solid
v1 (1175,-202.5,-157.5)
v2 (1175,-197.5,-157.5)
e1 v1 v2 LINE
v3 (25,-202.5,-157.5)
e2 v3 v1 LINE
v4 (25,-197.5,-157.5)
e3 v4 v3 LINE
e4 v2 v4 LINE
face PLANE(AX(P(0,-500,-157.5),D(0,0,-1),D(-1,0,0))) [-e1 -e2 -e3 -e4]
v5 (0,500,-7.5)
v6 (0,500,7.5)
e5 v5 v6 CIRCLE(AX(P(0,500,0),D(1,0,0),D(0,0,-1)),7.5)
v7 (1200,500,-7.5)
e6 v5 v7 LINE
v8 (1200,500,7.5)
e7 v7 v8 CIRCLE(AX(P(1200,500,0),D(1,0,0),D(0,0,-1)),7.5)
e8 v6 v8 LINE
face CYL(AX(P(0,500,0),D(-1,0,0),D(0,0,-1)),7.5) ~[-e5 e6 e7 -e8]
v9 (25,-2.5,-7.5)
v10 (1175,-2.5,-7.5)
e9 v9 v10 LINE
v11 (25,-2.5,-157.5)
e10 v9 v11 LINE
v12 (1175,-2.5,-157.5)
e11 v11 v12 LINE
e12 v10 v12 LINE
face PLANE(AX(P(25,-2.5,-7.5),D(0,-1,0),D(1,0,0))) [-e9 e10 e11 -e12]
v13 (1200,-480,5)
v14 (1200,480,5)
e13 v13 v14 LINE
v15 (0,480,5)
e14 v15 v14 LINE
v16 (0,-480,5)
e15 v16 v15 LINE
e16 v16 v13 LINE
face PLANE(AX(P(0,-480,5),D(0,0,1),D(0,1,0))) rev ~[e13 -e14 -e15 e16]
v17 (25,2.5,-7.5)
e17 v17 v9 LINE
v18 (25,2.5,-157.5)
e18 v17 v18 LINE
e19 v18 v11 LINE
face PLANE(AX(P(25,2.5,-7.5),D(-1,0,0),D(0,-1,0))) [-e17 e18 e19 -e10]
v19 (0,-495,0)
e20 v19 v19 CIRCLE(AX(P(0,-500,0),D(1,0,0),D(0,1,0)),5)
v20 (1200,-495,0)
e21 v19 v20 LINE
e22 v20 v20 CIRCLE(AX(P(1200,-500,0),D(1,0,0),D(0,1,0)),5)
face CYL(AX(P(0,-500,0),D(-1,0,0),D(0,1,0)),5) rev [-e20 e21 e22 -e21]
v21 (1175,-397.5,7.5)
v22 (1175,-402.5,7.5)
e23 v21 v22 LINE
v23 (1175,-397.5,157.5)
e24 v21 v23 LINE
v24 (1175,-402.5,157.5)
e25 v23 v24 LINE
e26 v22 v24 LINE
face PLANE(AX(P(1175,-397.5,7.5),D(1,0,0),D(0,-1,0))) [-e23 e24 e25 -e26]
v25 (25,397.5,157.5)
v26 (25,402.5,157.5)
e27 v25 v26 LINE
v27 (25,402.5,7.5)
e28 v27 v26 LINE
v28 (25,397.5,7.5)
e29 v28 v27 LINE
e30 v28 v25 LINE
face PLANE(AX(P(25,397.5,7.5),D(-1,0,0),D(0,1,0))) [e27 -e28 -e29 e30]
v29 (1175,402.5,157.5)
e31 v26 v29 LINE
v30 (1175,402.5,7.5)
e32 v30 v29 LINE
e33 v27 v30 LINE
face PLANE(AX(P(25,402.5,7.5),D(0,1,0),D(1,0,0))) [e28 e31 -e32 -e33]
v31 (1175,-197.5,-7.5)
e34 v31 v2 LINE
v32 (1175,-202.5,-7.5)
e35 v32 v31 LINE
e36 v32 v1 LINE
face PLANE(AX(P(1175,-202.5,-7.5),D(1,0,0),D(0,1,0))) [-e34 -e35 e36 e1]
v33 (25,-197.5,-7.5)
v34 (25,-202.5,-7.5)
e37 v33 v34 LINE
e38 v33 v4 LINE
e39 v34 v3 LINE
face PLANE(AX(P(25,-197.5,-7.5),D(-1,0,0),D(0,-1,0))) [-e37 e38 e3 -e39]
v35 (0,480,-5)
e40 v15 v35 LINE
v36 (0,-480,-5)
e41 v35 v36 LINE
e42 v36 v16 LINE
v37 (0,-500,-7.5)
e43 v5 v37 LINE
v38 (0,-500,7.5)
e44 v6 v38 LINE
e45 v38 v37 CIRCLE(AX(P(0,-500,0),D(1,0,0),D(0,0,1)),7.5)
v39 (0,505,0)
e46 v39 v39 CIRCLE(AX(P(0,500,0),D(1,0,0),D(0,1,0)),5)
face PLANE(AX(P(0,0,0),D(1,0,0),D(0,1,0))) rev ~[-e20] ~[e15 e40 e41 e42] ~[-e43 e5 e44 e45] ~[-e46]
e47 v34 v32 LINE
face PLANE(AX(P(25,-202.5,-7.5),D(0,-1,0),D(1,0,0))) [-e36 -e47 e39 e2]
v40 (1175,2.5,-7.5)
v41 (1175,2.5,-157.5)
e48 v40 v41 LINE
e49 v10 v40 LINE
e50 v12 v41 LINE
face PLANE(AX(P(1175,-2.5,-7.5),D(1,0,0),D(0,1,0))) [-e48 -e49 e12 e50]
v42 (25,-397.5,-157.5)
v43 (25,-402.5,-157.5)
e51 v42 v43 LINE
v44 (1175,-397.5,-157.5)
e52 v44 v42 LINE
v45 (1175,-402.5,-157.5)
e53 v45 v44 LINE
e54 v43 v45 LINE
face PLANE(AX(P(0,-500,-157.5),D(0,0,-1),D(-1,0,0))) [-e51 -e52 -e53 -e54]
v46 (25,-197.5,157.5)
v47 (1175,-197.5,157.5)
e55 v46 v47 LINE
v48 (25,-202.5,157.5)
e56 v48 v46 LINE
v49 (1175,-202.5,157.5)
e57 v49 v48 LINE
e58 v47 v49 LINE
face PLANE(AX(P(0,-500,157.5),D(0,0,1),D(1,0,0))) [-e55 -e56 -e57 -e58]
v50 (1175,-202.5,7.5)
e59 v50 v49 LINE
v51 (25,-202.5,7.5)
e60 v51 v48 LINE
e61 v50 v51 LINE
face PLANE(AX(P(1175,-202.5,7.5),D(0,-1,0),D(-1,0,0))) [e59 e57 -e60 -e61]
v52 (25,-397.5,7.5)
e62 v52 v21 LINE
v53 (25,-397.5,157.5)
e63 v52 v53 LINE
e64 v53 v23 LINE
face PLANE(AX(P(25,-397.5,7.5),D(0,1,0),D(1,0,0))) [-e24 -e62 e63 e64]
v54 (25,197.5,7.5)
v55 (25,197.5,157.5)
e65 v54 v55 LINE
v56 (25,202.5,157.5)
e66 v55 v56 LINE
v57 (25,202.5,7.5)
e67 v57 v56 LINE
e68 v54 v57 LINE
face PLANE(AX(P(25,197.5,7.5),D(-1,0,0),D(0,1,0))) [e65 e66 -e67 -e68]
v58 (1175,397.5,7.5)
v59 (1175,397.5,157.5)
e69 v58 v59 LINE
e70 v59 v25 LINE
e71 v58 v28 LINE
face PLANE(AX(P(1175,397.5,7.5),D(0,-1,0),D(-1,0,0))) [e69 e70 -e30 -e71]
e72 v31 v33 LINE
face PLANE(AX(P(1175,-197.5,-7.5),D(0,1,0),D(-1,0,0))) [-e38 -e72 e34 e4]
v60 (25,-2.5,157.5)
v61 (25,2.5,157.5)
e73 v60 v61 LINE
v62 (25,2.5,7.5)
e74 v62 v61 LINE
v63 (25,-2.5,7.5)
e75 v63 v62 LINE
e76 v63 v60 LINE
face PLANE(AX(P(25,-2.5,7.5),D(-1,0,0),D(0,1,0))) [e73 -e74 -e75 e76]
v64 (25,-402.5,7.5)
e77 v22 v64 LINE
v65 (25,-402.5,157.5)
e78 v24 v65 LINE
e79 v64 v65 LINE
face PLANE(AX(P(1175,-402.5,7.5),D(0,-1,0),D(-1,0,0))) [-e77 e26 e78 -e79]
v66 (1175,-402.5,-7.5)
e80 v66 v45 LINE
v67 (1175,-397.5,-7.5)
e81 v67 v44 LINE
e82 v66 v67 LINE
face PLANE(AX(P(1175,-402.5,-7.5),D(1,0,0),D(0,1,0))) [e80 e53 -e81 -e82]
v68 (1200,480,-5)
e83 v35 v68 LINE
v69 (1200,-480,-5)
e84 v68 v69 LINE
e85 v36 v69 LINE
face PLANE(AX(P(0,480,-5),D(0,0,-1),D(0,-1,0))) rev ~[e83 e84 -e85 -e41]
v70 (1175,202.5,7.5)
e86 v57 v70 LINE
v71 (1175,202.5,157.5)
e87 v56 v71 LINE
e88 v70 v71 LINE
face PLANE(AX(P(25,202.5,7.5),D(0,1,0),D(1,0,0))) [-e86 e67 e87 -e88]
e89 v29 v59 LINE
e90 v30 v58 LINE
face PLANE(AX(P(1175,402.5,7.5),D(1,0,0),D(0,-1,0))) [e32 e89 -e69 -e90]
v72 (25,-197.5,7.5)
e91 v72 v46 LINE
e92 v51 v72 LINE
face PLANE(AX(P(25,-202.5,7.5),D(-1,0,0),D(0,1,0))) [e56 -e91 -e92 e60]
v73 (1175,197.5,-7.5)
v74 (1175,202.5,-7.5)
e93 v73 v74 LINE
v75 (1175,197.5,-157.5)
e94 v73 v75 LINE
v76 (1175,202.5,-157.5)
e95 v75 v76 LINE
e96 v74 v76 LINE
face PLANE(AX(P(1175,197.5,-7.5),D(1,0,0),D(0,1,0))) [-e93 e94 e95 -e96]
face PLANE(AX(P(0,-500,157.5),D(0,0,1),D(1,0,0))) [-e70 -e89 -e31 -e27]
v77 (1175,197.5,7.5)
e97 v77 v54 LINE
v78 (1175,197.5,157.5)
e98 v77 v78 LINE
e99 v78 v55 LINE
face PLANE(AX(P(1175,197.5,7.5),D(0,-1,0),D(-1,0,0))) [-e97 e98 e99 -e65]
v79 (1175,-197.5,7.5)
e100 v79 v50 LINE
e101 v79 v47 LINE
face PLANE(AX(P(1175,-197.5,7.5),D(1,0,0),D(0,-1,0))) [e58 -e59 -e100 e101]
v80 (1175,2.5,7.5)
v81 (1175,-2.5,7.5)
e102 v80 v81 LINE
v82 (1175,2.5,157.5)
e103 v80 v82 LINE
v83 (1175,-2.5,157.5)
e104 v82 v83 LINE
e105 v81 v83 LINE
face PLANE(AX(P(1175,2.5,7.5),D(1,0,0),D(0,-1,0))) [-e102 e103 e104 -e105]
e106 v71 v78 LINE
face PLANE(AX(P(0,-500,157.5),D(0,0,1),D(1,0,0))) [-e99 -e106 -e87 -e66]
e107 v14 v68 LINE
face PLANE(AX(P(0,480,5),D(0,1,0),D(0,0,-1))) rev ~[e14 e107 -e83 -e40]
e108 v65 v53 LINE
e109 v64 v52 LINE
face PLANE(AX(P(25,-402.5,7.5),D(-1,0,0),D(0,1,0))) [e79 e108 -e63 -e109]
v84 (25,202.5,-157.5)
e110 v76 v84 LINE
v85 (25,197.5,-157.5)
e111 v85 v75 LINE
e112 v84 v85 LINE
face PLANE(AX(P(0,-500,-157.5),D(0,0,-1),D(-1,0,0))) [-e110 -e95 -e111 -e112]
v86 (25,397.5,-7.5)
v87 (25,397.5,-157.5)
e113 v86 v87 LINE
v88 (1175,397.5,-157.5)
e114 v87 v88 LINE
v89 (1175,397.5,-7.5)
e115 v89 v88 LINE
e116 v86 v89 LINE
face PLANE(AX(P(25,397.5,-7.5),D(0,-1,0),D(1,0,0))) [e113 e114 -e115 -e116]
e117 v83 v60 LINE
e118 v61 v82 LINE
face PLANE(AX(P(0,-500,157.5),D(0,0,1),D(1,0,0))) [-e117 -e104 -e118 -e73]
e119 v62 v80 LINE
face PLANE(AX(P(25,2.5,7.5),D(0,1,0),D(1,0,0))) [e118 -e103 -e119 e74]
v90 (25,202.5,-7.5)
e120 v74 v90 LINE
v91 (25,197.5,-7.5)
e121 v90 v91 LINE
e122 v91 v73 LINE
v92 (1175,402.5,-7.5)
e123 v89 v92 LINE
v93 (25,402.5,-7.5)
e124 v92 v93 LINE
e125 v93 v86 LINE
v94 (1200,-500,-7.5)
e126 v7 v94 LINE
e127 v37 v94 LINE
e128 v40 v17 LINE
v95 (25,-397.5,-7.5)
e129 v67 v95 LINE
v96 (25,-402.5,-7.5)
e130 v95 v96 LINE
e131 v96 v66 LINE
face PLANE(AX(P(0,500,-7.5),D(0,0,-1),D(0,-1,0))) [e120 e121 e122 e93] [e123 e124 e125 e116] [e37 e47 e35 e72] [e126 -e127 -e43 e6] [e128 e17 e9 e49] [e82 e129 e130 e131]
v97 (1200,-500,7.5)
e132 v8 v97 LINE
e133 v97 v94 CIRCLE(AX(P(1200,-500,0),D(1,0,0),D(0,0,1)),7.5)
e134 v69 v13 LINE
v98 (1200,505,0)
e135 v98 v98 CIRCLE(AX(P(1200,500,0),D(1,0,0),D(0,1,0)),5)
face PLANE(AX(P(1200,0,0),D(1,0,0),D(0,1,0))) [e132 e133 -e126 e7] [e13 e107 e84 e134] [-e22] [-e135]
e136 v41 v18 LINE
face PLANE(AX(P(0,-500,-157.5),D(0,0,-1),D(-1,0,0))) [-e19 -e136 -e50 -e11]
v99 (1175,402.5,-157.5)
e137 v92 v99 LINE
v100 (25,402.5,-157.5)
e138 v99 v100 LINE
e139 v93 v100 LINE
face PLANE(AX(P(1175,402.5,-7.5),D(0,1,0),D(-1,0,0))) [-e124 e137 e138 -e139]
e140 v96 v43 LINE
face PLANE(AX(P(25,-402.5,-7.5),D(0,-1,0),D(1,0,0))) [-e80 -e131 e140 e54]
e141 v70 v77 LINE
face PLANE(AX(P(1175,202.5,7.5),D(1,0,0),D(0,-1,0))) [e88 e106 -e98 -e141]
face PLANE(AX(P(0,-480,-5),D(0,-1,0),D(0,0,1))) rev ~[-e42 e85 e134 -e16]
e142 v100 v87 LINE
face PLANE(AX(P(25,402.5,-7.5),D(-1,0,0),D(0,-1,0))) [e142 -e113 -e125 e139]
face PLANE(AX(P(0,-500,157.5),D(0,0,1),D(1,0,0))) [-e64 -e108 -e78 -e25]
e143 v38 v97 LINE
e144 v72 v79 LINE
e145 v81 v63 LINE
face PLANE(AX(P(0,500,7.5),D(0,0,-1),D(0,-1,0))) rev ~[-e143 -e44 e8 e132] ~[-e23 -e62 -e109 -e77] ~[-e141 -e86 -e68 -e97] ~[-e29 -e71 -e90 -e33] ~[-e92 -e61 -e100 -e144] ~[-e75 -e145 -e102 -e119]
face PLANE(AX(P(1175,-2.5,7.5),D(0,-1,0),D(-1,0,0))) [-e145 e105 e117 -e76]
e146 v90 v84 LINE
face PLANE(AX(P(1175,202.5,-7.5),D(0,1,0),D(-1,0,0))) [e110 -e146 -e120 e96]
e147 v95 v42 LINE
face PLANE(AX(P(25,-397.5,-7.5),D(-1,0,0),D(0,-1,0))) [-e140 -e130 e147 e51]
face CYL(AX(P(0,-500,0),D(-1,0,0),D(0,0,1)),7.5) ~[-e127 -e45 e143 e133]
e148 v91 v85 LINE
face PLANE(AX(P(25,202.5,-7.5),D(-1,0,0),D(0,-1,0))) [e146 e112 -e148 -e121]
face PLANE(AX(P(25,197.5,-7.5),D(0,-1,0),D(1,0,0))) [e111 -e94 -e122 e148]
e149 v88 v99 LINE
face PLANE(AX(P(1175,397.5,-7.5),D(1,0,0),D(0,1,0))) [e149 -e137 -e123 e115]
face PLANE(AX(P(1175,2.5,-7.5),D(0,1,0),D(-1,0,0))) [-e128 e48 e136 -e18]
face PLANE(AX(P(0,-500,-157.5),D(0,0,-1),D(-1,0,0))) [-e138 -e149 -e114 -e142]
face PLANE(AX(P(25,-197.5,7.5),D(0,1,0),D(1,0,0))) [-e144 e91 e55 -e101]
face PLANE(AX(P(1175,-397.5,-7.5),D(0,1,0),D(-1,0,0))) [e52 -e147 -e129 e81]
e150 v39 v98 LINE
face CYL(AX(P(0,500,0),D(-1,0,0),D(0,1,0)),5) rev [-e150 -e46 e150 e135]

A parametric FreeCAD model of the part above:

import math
import FreeCAD as App
import Part
import Sketcher

V = App.Vector

doc = App.newDocument("Part")
body = doc.addObject("PartDesign::Body", "Body")

# Sketch on YZ plane
sketch1 = body.newObject("Sketcher::SketchObject", "Sketch")
sketch1.AttachmentSupport = (doc.getObject("YZ_Plane"), [""])
sketch1.MapMode = "FlatFace"
sketch1.addGeometry([
    Part.LineSegment(V(-500, -8, 0), V(500, -8, 0)),  # 0
    Part.ArcOfCircle(Part.Circle(V(500, 0, 0), V(0, 0, 1), 8), math.radians(-90), math.radians(90)),  # 1
    Part.LineSegment(V(500, 8, 0), V(-500, 8, 0)),  # 2
    Part.ArcOfCircle(Part.Circle(V(-500, 0, 0), V(0, 0, 1), 8), math.radians(90), math.radians(270)),  # 3
    Part.Circle(V(-500, 0, 0), V(0, 0, 1), 5),  # 4
    Part.LineSegment(V(-480, -5, 0), V(-480, 5, 0)),  # 5
    Part.LineSegment(V(-480, 5, 0), V(480, 5, 0)),  # 6
    Part.LineSegment(V(480, 5, 0), V(480, -5, 0)),  # 7
    Part.LineSegment(V(480, -5, 0), V(-480, -5, 0)),  # 8
    Part.Circle(V(500, 0, 0), V(0, 0, 1), 5),  # 9
], False)
sketch1.addConstraint([
    Sketcher.Constraint("Tangent", 0, 2, 1, 1),
    Sketcher.Constraint("Tangent", 1, 2, 2, 1),
    Sketcher.Constraint("Tangent", 2, 2, 3, 1),
    Sketcher.Constraint("Tangent", 3, 2, 0, 1),
    Sketcher.Constraint("Coincident", 5, 2, 6, 1),
    Sketcher.Constraint("Coincident", 6, 2, 7, 1),
    Sketcher.Constraint("Coincident", 7, 2, 8, 1),
    Sketcher.Constraint("Coincident", 8, 2, 5, 1),
    Sketcher.Constraint("Horizontal", 0),
    Sketcher.Constraint("Horizontal", 2),
    Sketcher.Constraint("Vertical", 5),
    Sketcher.Constraint("Horizontal", 6),
    Sketcher.Constraint("Vertical", 7),
    Sketcher.Constraint("Horizontal", 8),
    Sketcher.Constraint("Coincident", 4, 3, 3, 3),
    Sketcher.Constraint("Coincident", 9, 3, 1, 3),
    Sketcher.Constraint("Equal", 4, 9),
    Sketcher.Constraint("Symmetric", 1, 3, 3, 3, -1, 1),
    Sketcher.Constraint("Symmetric", 5, 2, 7, 2, -1, 1),
    Sketcher.Constraint("Diameter", 4, 10.0),
    Sketcher.Constraint("Radius", 1, 7.5),
    Sketcher.Constraint("DistanceX", 0, 1, 0, 2, 1000.0),
    Sketcher.Constraint("DistanceX", 6, 1, 6, 2, 960.0),
    Sketcher.Constraint("DistanceY", 5, 1, 5, 2, 10.0),
])
pad1 = body.newObject("PartDesign::Pad", "Pad")
pad1.Profile = sketch1
pad1.Length = 1200

# Sketch on XY plane
sketch2 = body.newObject("Sketcher::SketchObject", "Sketch001")
sketch2.AttachmentSupport = (doc.getObject("XY_Plane"), [""])
sketch2.MapMode = "FlatFace"
sketch2.AttachmentOffset = App.Placement(V(0, 0, 7.5), App.Rotation())
sketch2.addGeometry([
    Part.LineSegment(V(1175, 402, 0), V(25, 402, 0)),  # 0
    Part.LineSegment(V(25, 402, 0), V(25, 398, 0)),  # 1
    Part.LineSegment(V(25, 398, 0), V(1175, 398, 0)),  # 2
    Part.LineSegment(V(1175, 398, 0), V(1175, 402, 0)),  # 3
    Part.LineSegment(V(25, 198, 0), V(1175, 198, 0)),  # 4
    Part.LineSegment(V(1175, 198, 0), V(1175, 202, 0)),  # 5
    Part.LineSegment(V(1175, 202, 0), V(25, 202, 0)),  # 6
    Part.LineSegment(V(25, 202, 0), V(25, 198, 0)),  # 7
    Part.LineSegment(V(25, -2, 0), V(1175, -2, 0)),  # 8
    Part.LineSegment(V(1175, -2, 0), V(1175, 2, 0)),  # 9
    Part.LineSegment(V(1175, 2, 0), V(25, 2, 0)),  # 10
    Part.LineSegment(V(25, 2, 0), V(25, -2, 0)),  # 11
    Part.LineSegment(V(25, -202, 0), V(1175, -202, 0)),  # 12
    Part.LineSegment(V(1175, -202, 0), V(1175, -198, 0)),  # 13
    Part.LineSegment(V(1175, -198, 0), V(25, -198, 0)),  # 14
    Part.LineSegment(V(25, -198, 0), V(25, -202, 0)),  # 15
    Part.LineSegment(V(25, -402, 0), V(1175, -402, 0)),  # 16
    Part.LineSegment(V(1175, -402, 0), V(1175, -398, 0)),  # 17
    Part.LineSegment(V(1175, -398, 0), V(25, -398, 0)),  # 18
    Part.LineSegment(V(25, -398, 0), V(25, -402, 0)),  # 19
], False)
sketch2.addConstraint([
    Sketcher.Constraint("Coincident", 0, 2, 1, 1),
    Sketcher.Constraint("Coincident", 1, 2, 2, 1),
    Sketcher.Constraint("Coincident", 2, 2, 3, 1),
    Sketcher.Constraint("Coincident", 3, 2, 0, 1),
    Sketcher.Constraint("Coincident", 4, 2, 5, 1),
    Sketcher.Constraint("Coincident", 5, 2, 6, 1),
    Sketcher.Constraint("Coincident", 6, 2, 7, 1),
    Sketcher.Constraint("Coincident", 7, 2, 4, 1),
    Sketcher.Constraint("Coincident", 8, 2, 9, 1),
    Sketcher.Constraint("Coincident", 9, 2, 10, 1),
    Sketcher.Constraint("Coincident", 10, 2, 11, 1),
    Sketcher.Constraint("Coincident", 11, 2, 8, 1),
    Sketcher.Constraint("Coincident", 12, 2, 13, 1),
    Sketcher.Constraint("Coincident", 13, 2, 14, 1),
    Sketcher.Constraint("Coincident", 14, 2, 15, 1),
    Sketcher.Constraint("Coincident", 15, 2, 12, 1),
    Sketcher.Constraint("Coincident", 16, 2, 17, 1),
    Sketcher.Constraint("Coincident", 17, 2, 18, 1),
    Sketcher.Constraint("Coincident", 18, 2, 19, 1),
    Sketcher.Constraint("Coincident", 19, 2, 16, 1),
    Sketcher.Constraint("Horizontal", 0),
    Sketcher.Constraint("Vertical", 1),
    Sketcher.Constraint("Horizontal", 2),
    Sketcher.Constraint("Vertical", 3),
    Sketcher.Constraint("Horizontal", 4),
    Sketcher.Constraint("Vertical", 5),
    Sketcher.Constraint("Horizontal", 6),
    Sketcher.Constraint("Vertical", 7),
    Sketcher.Constraint("Horizontal", 8),
    Sketcher.Constraint("Vertical", 9),
    Sketcher.Constraint("Horizontal", 10),
    Sketcher.Constraint("Vertical", 11),
    Sketcher.Constraint("Horizontal", 12),
    Sketcher.Constraint("Vertical", 13),
    Sketcher.Constraint("Horizontal", 14),
    Sketcher.Constraint("Vertical", 15),
    Sketcher.Constraint("Horizontal", 16),
    Sketcher.Constraint("Vertical", 17),
    Sketcher.Constraint("Horizontal", 18),
    Sketcher.Constraint("Vertical", 19),
    Sketcher.Constraint("Symmetric", 5, 2, 12, 2, -1),
    Sketcher.Constraint("Symmetric", 7, 2, 14, 2, -1),
    Sketcher.Constraint("Symmetric", 3, 2, 16, 2, -1),
    Sketcher.Constraint("Symmetric", 1, 2, 18, 2, -1),
    Sketcher.Constraint("Vertical", 3, 2, 4, 2),
    Sketcher.Constraint("Vertical", 1, 2, 6, 2),
    Sketcher.Constraint("Vertical", 5, 2, 8, 2),
    Sketcher.Constraint("Vertical", 7, 2, 10, 2),
    Sketcher.Constraint("Equal", 3, 5),
    Sketcher.Constraint("Equal", 7, 9),
    Sketcher.Constraint("DistanceX", 0, 2, 0, 1, 1150.0),
    Sketcher.Constraint("DistanceY", 1, 2, 1, 1, 5.0),
    Sketcher.Constraint("DistanceY", 4, 2, 2, 2, 200.0),
    Sketcher.Constraint("DistanceY", 8, 2, 4, 2, 200.0),
    Sketcher.Constraint("DistanceY", 12, 2, 8, 2, 200.0),
    Sketcher.Constraint("DistanceX", -1, 1, 0, 2, 25.0),
])
pad2 = body.newObject("PartDesign::Pad", "Pad001")
pad2.Profile = sketch2
pad2.Length = 150

# Sketch on XY plane
sketch3 = body.newObject("Sketcher::SketchObject", "Sketch002")
sketch3.AttachmentSupport = (doc.getObject("XY_Plane"), [""])
sketch3.MapMode = "FlatFace"
sketch3.AttachmentOffset = App.Placement(V(0, 0, -7.5), App.Rotation())
sketch3.addGeometry([
    Part.LineSegment(V(1175, 398, 0), V(25, 398, 0)),  # 0
    Part.LineSegment(V(25, 398, 0), V(25, 402, 0)),  # 1
    Part.LineSegment(V(25, 402, 0), V(1175, 402, 0)),  # 2
    Part.LineSegment(V(1175, 402, 0), V(1175, 398, 0)),  # 3
    Part.LineSegment(V(25, 202, 0), V(1175, 202, 0)),  # 4
    Part.LineSegment(V(1175, 202, 0), V(1175, 198, 0)),  # 5
    Part.LineSegment(V(1175, 198, 0), V(25, 198, 0)),  # 6
    Part.LineSegment(V(25, 198, 0), V(25, 202, 0)),  # 7
    Part.LineSegment(V(25, 2, 0), V(1175, 2, 0)),  # 8
    Part.LineSegment(V(1175, 2, 0), V(1175, -2, 0)),  # 9
    Part.LineSegment(V(1175, -2, 0), V(25, -2, 0)),  # 10
    Part.LineSegment(V(25, -2, 0), V(25, 2, 0)),  # 11
    Part.LineSegment(V(25, -198, 0), V(1175, -198, 0)),  # 12
    Part.LineSegment(V(1175, -198, 0), V(1175, -202, 0)),  # 13
    Part.LineSegment(V(1175, -202, 0), V(25, -202, 0)),  # 14
    Part.LineSegment(V(25, -202, 0), V(25, -198, 0)),  # 15
    Part.LineSegment(V(25, -398, 0), V(1175, -398, 0)),  # 16
    Part.LineSegment(V(1175, -398, 0), V(1175, -402, 0)),  # 17
    Part.LineSegment(V(1175, -402, 0), V(25, -402, 0)),  # 18
    Part.LineSegment(V(25, -402, 0), V(25, -398, 0)),  # 19
], False)
sketch3.addConstraint([
    Sketcher.Constraint("Coincident", 0, 2, 1, 1),
    Sketcher.Constraint("Coincident", 1, 2, 2, 1),
    Sketcher.Constraint("Coincident", 2, 2, 3, 1),
    Sketcher.Constraint("Coincident", 3, 2, 0, 1),
    Sketcher.Constraint("Coincident", 4, 2, 5, 1),
    Sketcher.Constraint("Coincident", 5, 2, 6, 1),
    Sketcher.Constraint("Coincident", 6, 2, 7, 1),
    Sketcher.Constraint("Coincident", 7, 2, 4, 1),
    Sketcher.Constraint("Coincident", 8, 2, 9, 1),
    Sketcher.Constraint("Coincident", 9, 2, 10, 1),
    Sketcher.Constraint("Coincident", 10, 2, 11, 1),
    Sketcher.Constraint("Coincident", 11, 2, 8, 1),
    Sketcher.Constraint("Coincident", 12, 2, 13, 1),
    Sketcher.Constraint("Coincident", 13, 2, 14, 1),
    Sketcher.Constraint("Coincident", 14, 2, 15, 1),
    Sketcher.Constraint("Coincident", 15, 2, 12, 1),
    Sketcher.Constraint("Coincident", 16, 2, 17, 1),
    Sketcher.Constraint("Coincident", 17, 2, 18, 1),
    Sketcher.Constraint("Coincident", 18, 2, 19, 1),
    Sketcher.Constraint("Coincident", 19, 2, 16, 1),
    Sketcher.Constraint("Horizontal", 0),
    Sketcher.Constraint("Vertical", 1),
    Sketcher.Constraint("Horizontal", 2),
    Sketcher.Constraint("Vertical", 3),
    Sketcher.Constraint("Horizontal", 4),
    Sketcher.Constraint("Vertical", 5),
    Sketcher.Constraint("Horizontal", 6),
    Sketcher.Constraint("Vertical", 7),
    Sketcher.Constraint("Horizontal", 8),
    Sketcher.Constraint("Vertical", 9),
    Sketcher.Constraint("Horizontal", 10),
    Sketcher.Constraint("Vertical", 11),
    Sketcher.Constraint("Horizontal", 12),
    Sketcher.Constraint("Vertical", 13),
    Sketcher.Constraint("Horizontal", 14),
    Sketcher.Constraint("Vertical", 15),
    Sketcher.Constraint("Horizontal", 16),
    Sketcher.Constraint("Vertical", 17),
    Sketcher.Constraint("Horizontal", 18),
    Sketcher.Constraint("Vertical", 19),
    Sketcher.Constraint("Symmetric", 5, 2, 12, 2, -1),
    Sketcher.Constraint("Symmetric", 7, 2, 14, 2, -1),
    Sketcher.Constraint("Symmetric", 3, 2, 16, 2, -1),
    Sketcher.Constraint("Symmetric", 1, 2, 18, 2, -1),
    Sketcher.Constraint("Vertical", 3, 2, 4, 2),
    Sketcher.Constraint("Vertical", 1, 2, 6, 2),
    Sketcher.Constraint("Vertical", 5, 2, 8, 2),
    Sketcher.Constraint("Vertical", 7, 2, 10, 2),
    Sketcher.Constraint("Equal", 3, 5),
    Sketcher.Constraint("Equal", 7, 9),
    Sketcher.Constraint("DistanceY", 1, 1, 1, 2, 5.0),
    Sketcher.Constraint("DistanceY", 4, 2, 2, 2, 200.0),
    Sketcher.Constraint("DistanceY", 8, 2, 4, 2, 200.0),
    Sketcher.Constraint("DistanceY", 12, 2, 8, 2, 200.0),
    Sketcher.Constraint("DistanceX", 0, 2, 0, 1, 1150.0),
    Sketcher.Constraint("DistanceX", -1, 1, 0, 2, 25.0),
])
pad3 = body.newObject("PartDesign::Pad", "Pad002")
pad3.Profile = sketch3
pad3.Length = 150
pad3.Reversed = True

doc.recompute()
